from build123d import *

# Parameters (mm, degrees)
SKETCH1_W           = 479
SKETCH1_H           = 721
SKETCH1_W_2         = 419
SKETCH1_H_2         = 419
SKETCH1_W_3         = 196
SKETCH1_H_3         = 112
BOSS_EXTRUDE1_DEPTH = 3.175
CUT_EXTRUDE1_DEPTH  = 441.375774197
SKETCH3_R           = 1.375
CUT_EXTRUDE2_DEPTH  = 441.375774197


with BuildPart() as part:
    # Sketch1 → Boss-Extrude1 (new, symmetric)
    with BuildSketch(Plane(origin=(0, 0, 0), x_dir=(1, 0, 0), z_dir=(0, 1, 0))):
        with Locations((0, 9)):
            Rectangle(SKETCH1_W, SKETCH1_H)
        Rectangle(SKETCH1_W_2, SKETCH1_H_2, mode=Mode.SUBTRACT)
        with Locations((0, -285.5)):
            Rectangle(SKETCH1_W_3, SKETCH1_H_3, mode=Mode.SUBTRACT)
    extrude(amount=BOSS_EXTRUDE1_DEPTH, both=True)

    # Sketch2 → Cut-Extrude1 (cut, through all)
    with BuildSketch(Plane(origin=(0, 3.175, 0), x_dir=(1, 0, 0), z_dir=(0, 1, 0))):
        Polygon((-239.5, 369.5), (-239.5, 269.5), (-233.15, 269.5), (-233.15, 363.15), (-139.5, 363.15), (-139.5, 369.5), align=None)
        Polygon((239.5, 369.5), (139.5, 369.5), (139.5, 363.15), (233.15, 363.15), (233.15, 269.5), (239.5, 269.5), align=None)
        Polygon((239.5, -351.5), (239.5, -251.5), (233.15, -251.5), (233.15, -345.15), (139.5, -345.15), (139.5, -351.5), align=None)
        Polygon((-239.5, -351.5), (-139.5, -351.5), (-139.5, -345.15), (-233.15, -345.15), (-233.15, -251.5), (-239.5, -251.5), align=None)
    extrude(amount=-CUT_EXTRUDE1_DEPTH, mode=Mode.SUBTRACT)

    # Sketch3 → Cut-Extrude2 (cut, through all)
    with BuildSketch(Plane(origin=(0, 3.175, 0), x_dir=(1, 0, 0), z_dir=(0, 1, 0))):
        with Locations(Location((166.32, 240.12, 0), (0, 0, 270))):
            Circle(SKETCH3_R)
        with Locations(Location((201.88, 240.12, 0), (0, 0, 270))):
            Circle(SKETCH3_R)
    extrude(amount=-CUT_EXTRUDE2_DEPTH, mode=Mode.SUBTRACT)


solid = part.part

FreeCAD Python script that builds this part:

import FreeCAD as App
import Part
import Sketcher
from FreeCAD import Vector
Q = App.Units.Quantity


def add_polygon(sketch, points):
    """Adds a closed chain of lines whose ends are joined by coincident constraints."""
    first, n = sketch.GeometryCount, len(points)
    for a, b in zip(points, points[1:] + points[:1]):
        sketch.addGeometry(Part.LineSegment(App.Vector(*a, 0), App.Vector(*b, 0)), False)
    for i in range(n):
        sketch.addConstraint(Sketcher.Constraint("Coincident", first + i, 2, first + (i + 1) % n, 1))

doc = App.newDocument("Part")
params = doc.addObject("Spreadsheet::Sheet", "Params")
for row, (alias, value) in enumerate([
    ("sketch1_width", "479 mm"),
    ("sketch1_width2", "196 mm"),
    ("sketch1_width3", "419 mm"),
    ("sketch1_height", "721 mm"),
    ("sketch1_height2", "112 mm"),
    ("pad1_length", "6.35 mm"),
    ("sketch2_width", "100 mm"),
    ("sketch2_width2", "6.35 mm"),
    ("sketch3_diameter", "2.75 mm"),
], start=1):
    params.set(f"A{row}", alias)
    params.set(f"B{row}", "=" + value)
    params.setAlias(f"B{row}", alias)

body = doc.addObject("PartDesign::Body", "Body")

sketch1 = doc.addObject("Sketcher::SketchObject", "Sketch")
body.addObject(sketch1)
sketch1.AttachmentSupport = (doc.XZ_Plane, [""])
sketch1.MapMode = "FlatFace"
add_polygon(sketch1, [(-240, -370), (-240, 352), (240, 352), (240, -370)])
add_polygon(sketch1, [(98, 342), (-98, 342), (-98, 230), (98, 230)])
add_polygon(sketch1, [(210, 210), (-210, 210), (-210, -210), (210, -210)])
sketch1.addConstraint([
    Sketcher.Constraint("Vertical", 0),
    Sketcher.Constraint("Horizontal", 1),
    Sketcher.Constraint("Vertical", 2),
    Sketcher.Constraint("Horizontal", 3),
    Sketcher.Constraint("Horizontal", 4),
    Sketcher.Constraint("Vertical", 5),
    Sketcher.Constraint("Horizontal", 6),
    Sketcher.Constraint("Vertical", 7),
    Sketcher.Constraint("Horizontal", 8),
    Sketcher.Constraint("Vertical", 9),
    Sketcher.Constraint("Horizontal", 10),
    Sketcher.Constraint("Vertical", 11),
    Sketcher.Constraint("Symmetric", 8, 2, 10, 2, -1, 1),
    Sketcher.Constraint("Equal", 10, 9),
    Sketcher.Constraint("DistanceX", 1, 1, 1, 2, Q("479 mm")),
    Sketcher.Constraint("DistanceX", 4, 2, 4, 1, Q("196 mm")),
    Sketcher.Constraint("DistanceX", 8, 2, 8, 1, Q("419 mm")),
    Sketcher.Constraint("DistanceY", 0, 1, 0, 2, Q("721 mm")),
    Sketcher.Constraint("DistanceY", 5, 2, 5, 1, Q("112 mm")),
    Sketcher.Constraint("DistanceX", 4, 2, -1, 1, Q("98 mm")),
    Sketcher.Constraint("DistanceY", 4, 2, 0, 2, Q("10 mm")),
    Sketcher.Constraint("DistanceY", 8, 2, 5, 2, Q("20 mm")),
    Sketcher.Constraint("DistanceX", 0, 2, 8, 2, Q("30 mm")),
])
sketch1.setExpression("Constraints[26]", "Params.sketch1_width")
sketch1.setExpression("Constraints[27]", "Params.sketch1_width2")
sketch1.setExpression("Constraints[28]", "Params.sketch1_width3")
sketch1.setExpression("Constraints[29]", "Params.sketch1_height")
sketch1.setExpression("Constraints[30]", "Params.sketch1_height2")
pad1 = doc.addObject("PartDesign::Pad", "Pad")
body.addObject(pad1)
pad1.Profile = sketch1
pad1.setExpression("Length", "Params.pad1_length")
pad1.Midplane = True

sketch2 = doc.addObject("Sketcher::SketchObject", "Sketch001")
body.addObject(sketch2)
sketch2.AttachmentSupport = (doc.XZ_Plane, [""])
sketch2.MapMode = "FlatFace"
sketch2.AttachmentOffset = App.Placement(Vector(0, 0, -3.175), App.Rotation())
add_polygon(sketch2, [(-240, -370), (-240, -270), (-233, -270), (-233, -363), (-140, -363), (-140, -370)])
add_polygon(sketch2, [(240, -370), (140, -370), (140, -363), (233, -363), (233, -270), (240, -270)])
add_polygon(sketch2, [(240, 352), (240, 252), (233, 252), (233, 345), (140, 345), (140, 352)])
add_polygon(sketch2, [(-240, 352), (-140, 352), (-140, 345), (-233, 345), (-233, 252), (-240, 252)])
sketch2.addConstraint([
    Sketcher.Constraint("Vertical", 0),
    Sketcher.Constraint("Horizontal", 1),
    Sketcher.Constraint("Vertical", 2),
    Sketcher.Constraint("Horizontal", 3),
    Sketcher.Constraint("Vertical", 4),
    Sketcher.Constraint("Horizontal", 5),
    Sketcher.Constraint("Horizontal", 6),
    Sketcher.Constraint("Vertical", 7),
    Sketcher.Constraint("Horizontal", 8),
    Sketcher.Constraint("Vertical", 9),
    Sketcher.Constraint("Horizontal", 10),
    Sketcher.Constraint("Vertical", 11),
    Sketcher.Constraint("Vertical", 12),
    Sketcher.Constraint("Horizontal", 13),
    Sketcher.Constraint("Vertical", 14),
    Sketcher.Constraint("Horizontal", 15),
    Sketcher.Constraint("Vertical", 16),
    Sketcher.Constraint("Horizontal", 17),
    Sketcher.Constraint("Horizontal", 18),
    Sketcher.Constraint("Vertical", 19),
    Sketcher.Constraint("Horizontal", 20),
    Sketcher.Constraint("Vertical", 21),
    Sketcher.Constraint("Horizontal", 22),
    Sketcher.Constraint("Vertical", 23),
    Sketcher.Constraint("Symmetric", 4, 2, 6, 2, -2),
    Sketcher.Constraint("Symmetric", 2, 2, 8, 2, -2),
    Sketcher.Constraint("Symmetric", 0, 2, 10, 2, -2),
    Sketcher.Constraint("Symmetric", 16, 2, 18, 2, -2),
    Sketcher.Constraint("Symmetric", 14, 2, 20, 2, -2),
    Sketcher.Constraint("Symmetric", 12, 2, 22, 2, -2),
    Sketcher.Constraint("Vertical", 11, 2, 12, 2),
    Sketcher.Constraint("Vertical", 9, 2, 13, 2),
    Sketcher.Constraint("Vertical", 7, 2, 15, 2),
    Sketcher.Constraint("Equal", 18, 0),
    Sketcher.Constraint("Equal", 20, 2),
    Sketcher.Constraint("Equal", 11, 12),
    Sketcher.Constraint("Equal", 9, 14),
    Sketcher.Constraint("DistanceX", 5, 2, 5, 1, Q("100 mm")),
    Sketcher.Constraint("DistanceX", 4, 2, 6, 2, Q("279 mm")),
    Sketcher.Constraint("DistanceY", 10, 2, 12, 2, Q("521 mm")),
    Sketcher.Constraint("DistanceX", 1, 1, 1, 2, Q("6.35 mm")),
    Sketcher.Constraint("DistanceY", 0, 2, -1, 1, Q("269.5 mm")),
])
sketch2.setExpression("Constraints[61]", "Params.sketch2_width")
sketch2.setExpression("Constraints[64]", "Params.sketch2_width2")
pocket1 = doc.addObject("PartDesign::Pocket", "Pocket")
body.addObject(pocket1)
pocket1.Profile = sketch2
pocket1.Type = "ThroughAll"
pocket1.Reversed = True

sketch3 = doc.addObject("Sketcher::SketchObject", "Sketch002")
body.addObject(sketch3)
sketch3.AttachmentSupport = (doc.XZ_Plane, [""])
sketch3.MapMode = "FlatFace"
sketch3.AttachmentOffset = App.Placement(Vector(0, 0, -3.175), App.Rotation())
sketch3.addGeometry([
    Part.Circle(Vector(166.3, -240.1, 0), Vector(0, 0, 1), 1.4),
    Part.Circle(Vector(201.9, -240.1, 0), Vector(0, 0, 1), 1.4),
], False)
sketch3.addConstraint([
    Sketcher.Constraint("Equal", 0, 1),
    Sketcher.Constraint("Horizontal", 0, 3, 1, 3),
    Sketcher.Constraint("Diameter", 0, Q("2.75 mm")),
    Sketcher.Constraint("DistanceX", -1, 1, 0, 3, Q("166.32 mm")),
    Sketcher.Constraint("DistanceY", 0, 3, -1, 1, Q("240.12 mm")),
    Sketcher.Constraint("DistanceX", -1, 1, 1, 3, Q("201.88 mm")),
])
sketch3.setExpression("Constraints[2]", "Params.sketch3_diameter")
pocket2 = doc.addObject("PartDesign::Pocket", "Pocket001")
body.addObject(pocket2)
pocket2.Profile = sketch3
pocket2.Type = "ThroughAll"
pocket2.Reversed = True

doc.recompute()
